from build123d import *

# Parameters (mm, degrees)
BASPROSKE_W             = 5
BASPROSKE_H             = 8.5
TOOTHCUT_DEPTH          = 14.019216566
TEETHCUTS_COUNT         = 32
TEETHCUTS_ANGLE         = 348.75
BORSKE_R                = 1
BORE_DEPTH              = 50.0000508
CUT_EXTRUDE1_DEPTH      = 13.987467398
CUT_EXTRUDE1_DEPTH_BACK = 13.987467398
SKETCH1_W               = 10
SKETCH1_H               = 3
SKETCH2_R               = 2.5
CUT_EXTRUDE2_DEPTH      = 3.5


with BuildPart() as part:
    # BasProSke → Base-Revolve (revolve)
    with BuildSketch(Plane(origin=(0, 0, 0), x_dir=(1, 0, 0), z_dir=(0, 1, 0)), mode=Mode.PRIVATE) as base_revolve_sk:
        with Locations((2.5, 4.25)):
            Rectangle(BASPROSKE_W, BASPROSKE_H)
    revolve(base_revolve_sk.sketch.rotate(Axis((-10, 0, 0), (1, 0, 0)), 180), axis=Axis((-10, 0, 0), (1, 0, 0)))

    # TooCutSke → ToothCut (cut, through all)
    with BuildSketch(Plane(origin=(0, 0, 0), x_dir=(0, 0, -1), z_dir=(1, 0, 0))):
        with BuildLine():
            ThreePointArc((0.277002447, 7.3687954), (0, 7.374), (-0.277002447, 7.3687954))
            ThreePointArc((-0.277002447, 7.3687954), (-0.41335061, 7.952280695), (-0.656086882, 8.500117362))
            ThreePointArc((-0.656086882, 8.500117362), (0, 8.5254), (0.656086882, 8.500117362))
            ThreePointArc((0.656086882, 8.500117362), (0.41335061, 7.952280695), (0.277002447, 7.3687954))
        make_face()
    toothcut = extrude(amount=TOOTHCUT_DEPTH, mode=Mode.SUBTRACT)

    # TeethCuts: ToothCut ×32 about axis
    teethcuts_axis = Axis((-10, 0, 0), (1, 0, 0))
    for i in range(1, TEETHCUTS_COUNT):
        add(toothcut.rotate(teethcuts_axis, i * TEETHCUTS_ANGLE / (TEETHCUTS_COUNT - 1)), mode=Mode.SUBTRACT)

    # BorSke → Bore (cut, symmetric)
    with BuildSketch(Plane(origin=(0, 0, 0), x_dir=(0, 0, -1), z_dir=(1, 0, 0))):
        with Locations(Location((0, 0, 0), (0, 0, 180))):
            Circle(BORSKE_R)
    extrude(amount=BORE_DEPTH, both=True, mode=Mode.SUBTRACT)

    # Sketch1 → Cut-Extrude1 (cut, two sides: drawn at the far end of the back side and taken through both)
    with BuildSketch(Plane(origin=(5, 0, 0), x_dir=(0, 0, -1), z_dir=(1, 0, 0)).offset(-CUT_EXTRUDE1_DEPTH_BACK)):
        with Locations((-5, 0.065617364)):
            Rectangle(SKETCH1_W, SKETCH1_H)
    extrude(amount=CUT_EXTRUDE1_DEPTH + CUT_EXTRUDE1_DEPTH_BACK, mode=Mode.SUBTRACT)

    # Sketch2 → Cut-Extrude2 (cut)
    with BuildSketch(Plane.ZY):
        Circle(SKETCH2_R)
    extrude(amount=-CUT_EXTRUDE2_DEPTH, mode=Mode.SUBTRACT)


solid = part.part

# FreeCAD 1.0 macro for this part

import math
import FreeCAD as App
import Part
import Sketcher
from FreeCAD import Vector


def add_polygon(sketch, points):
    """Adds a closed chain of lines whose ends are joined by coincident constraints."""
    first, n = sketch.GeometryCount, len(points)
    for a, b in zip(points, points[1:] + points[:1]):
        sketch.addGeometry(Part.LineSegment(App.Vector(*a, 0), App.Vector(*b, 0)), False)
    for i in range(n):
        sketch.addConstraint(Sketcher.Constraint("Coincident", first + i, 2, first + (i + 1) % n, 1))

doc = App.newDocument("Part")
params = doc.addObject("Spreadsheet::Sheet", "Params")
for row, (alias, value) in enumerate([
    ("sketch1_width", "5 mm"),
    ("sketch1_height", "8.5 mm"),
    ("revolution_angle", "360 deg"),
    ("sketch2_radius", "3.2 mm"),
    ("sketch3_diameter", "2 mm"),
    ("pocket2_length", "100.000102 mm"),
    ("sketch4_width", "3 mm"),
    ("sketch4_height", "10 mm"),
    ("sketch5_diameter", "5 mm"),
    ("pocket4_length", "3.5 mm"),
], start=1):
    params.set(f"A{row}", alias)
    params.set(f"B{row}", "=" + value)
    params.setAlias(f"B{row}", alias)

body = doc.addObject("PartDesign::Body", "Body")

sketch1 = body.newObject("Sketcher::SketchObject", "Sketch")
sketch1.AttachmentSupport = (doc.getObject("XZ_Plane"), [""])
sketch1.MapMode = "FlatFace"
add_polygon(sketch1, [(0, -8), (0, 0), (5, 0), (5, -8)])
sketch1.addConstraint([
    Sketcher.Constraint("Vertical", 0),
    Sketcher.Constraint("Horizontal", 1),
    Sketcher.Constraint("Vertical", 2),
    Sketcher.Constraint("Horizontal", 3),
    Sketcher.Constraint("Coincident", 0, 2, -1, 1),
    Sketcher.Constraint("DistanceX", 1, 1, 1, 2, 5.0),
    Sketcher.Constraint("DistanceY", 0, 1, 0, 2, 8.5),
])
sketch1.setExpression("Constraints[9]", "Params.sketch1_width")
sketch1.setExpression("Constraints[10]", "Params.sketch1_height")
revolution = body.newObject("PartDesign::Revolution", "Revolution")
revolution.Profile = sketch1
revolution.ReferenceAxis = (sketch1, ["H_Axis"])
revolution.setExpression("Angle", "Params.revolution_angle")

sketch2 = body.newObject("Sketcher::SketchObject", "Sketch001")
sketch2.AttachmentSupport = (doc.getObject("YZ_Plane"), [""])
sketch2.MapMode = "FlatFace"
sketch2.addGeometry([
    Part.ArcOfCircle(Part.Circle(Vector(0, 0, 0), Vector(0, 0, 1), 7.4), math.radians(-2.15), math.radians(2.15)),
    Part.ArcOfCircle(Part.Circle(Vector(6.9, -3.4, 0), Vector(0, 0, 1), 3.2), math.radians(61), math.radians(82)),
    Part.ArcOfCircle(Part.Circle(Vector(0, 0, 0), Vector(0, 0, 1), 8.5), math.radians(-4.41), math.radians(4.41)),
    Part.ArcOfCircle(Part.Circle(Vector(6.9, 3.4, 0), Vector(0, 0, 1), 3.2), math.radians(-82), math.radians(-61)),
], False)
sketch2.addConstraint([
    Sketcher.Constraint("Coincident", 0, 1, 1, 2),
    Sketcher.Constraint("Coincident", 1, 1, 2, 1),
    Sketcher.Constraint("Coincident", 2, 2, 3, 2),
    Sketcher.Constraint("Coincident", 3, 1, 0, 2),
    Sketcher.Constraint("Coincident", 0, 3, -1, 1),
    Sketcher.Constraint("Coincident", 2, 3, -1, 1),
    Sketcher.Constraint("Equal", 1, 3),
    Sketcher.Constraint("Symmetric", 1, 3, 3, 3, -1),
    Sketcher.Constraint("Radius", 1, 3.2),
    Sketcher.Constraint("Radius", 0, 7.374),
    Sketcher.Constraint("Radius", 2, 8.5254),
    Sketcher.Constraint("DistanceX", -1, 1, 1, 3, 6.935581),
    Sketcher.Constraint("DistanceX", 0, 1, 1, 1, 1.131322),
])
sketch2.setExpression("Constraints[8]", "Params.sketch2_radius")
pocket1 = body.newObject("PartDesign::Pocket", "Pocket")
pocket1.Profile = sketch2
pocket1.Type = "ThroughAll"
pocket1.Reversed = True
doc.recompute()

polarpattern = body.newObject("PartDesign::PolarPattern", "PolarPattern")
polarpattern.Originals = [pocket1]
polarpattern.Axis = (doc.getObject("X_Axis"), [""])
polarpattern.Angle = 360
polarpattern.Occurrences = 32
body.Tip = polarpattern

sketch3 = body.newObject("Sketcher::SketchObject", "Sketch002")
sketch3.AttachmentSupport = (doc.getObject("YZ_Plane"), [""])
sketch3.MapMode = "FlatFace"
sketch3.addGeometry(Part.Circle(Vector(0, 0, 0), Vector(0, 0, 1), 1), False)
sketch3.addConstraint([
    Sketcher.Constraint("Coincident", 0, 3, -1, 1),
    Sketcher.Constraint("Diameter", 0, 2.0),
])
sketch3.setExpression("Constraints[1]", "Params.sketch3_diameter")
pocket2 = body.newObject("PartDesign::Pocket", "Pocket001")
pocket2.Profile = sketch3
pocket2.setExpression("Length", "Params.pocket2_length")
pocket2.Midplane = True

sketch4 = body.newObject("Sketcher::SketchObject", "Sketch003")
sketch4.AttachmentSupport = (doc.getObject("YZ_Plane"), [""])
sketch4.MapMode = "FlatFace"
sketch4.AttachmentOffset = App.Placement(Vector(0, 0, 5), App.Rotation())
add_polygon(sketch4, [(1.6, 10), (-1.4, 10), (-1.4, 0), (1.6, 0)])
sketch4.addConstraint([
    Sketcher.Constraint("Horizontal", 0),
    Sketcher.Constraint("Vertical", 1),
    Sketcher.Constraint("Horizontal", 2),
    Sketcher.Constraint("Vertical", 3),
    Sketcher.Constraint("PointOnObject", 1, 2, -1),
    Sketcher.Constraint("DistanceX", 0, 2, 0, 1, 3.0),
    Sketcher.Constraint("DistanceY", 1, 2, 1, 1, 10.0),
    Sketcher.Constraint("DistanceX", 0, 2, -1, 1, 1.434383),
])
sketch4.setExpression("Constraints[9]", "Params.sketch4_width")
sketch4.setExpression("Constraints[10]", "Params.sketch4_height")
pocket3 = body.newObject("PartDesign::Pocket", "Pocket002")
pocket3.Profile = sketch4
pocket3.Type = "ThroughAll"
pocket3.Midplane = True

sketch5 = body.newObject("Sketcher::SketchObject", "Sketch004")
sketch5.AttachmentSupport = (doc.getObject("YZ_Plane"), [""])
sketch5.MapMode = "FlatFace"
sketch5.addGeometry(Part.Circle(Vector(0, 0, 0), Vector(0, 0, 1), 2.5), False)
sketch5.addConstraint([
    Sketcher.Constraint("Coincident", 0, 3, -1, 1),
    Sketcher.Constraint("Diameter", 0, 5.0),
])
sketch5.setExpression("Constraints[1]", "Params.sketch5_diameter")
pocket4 = body.newObject("PartDesign::Pocket", "Pocket003")
pocket4.Profile = sketch5
pocket4.setExpression("Length", "Params.pocket4_length")
pocket4.Reversed = True

doc.recompute()
